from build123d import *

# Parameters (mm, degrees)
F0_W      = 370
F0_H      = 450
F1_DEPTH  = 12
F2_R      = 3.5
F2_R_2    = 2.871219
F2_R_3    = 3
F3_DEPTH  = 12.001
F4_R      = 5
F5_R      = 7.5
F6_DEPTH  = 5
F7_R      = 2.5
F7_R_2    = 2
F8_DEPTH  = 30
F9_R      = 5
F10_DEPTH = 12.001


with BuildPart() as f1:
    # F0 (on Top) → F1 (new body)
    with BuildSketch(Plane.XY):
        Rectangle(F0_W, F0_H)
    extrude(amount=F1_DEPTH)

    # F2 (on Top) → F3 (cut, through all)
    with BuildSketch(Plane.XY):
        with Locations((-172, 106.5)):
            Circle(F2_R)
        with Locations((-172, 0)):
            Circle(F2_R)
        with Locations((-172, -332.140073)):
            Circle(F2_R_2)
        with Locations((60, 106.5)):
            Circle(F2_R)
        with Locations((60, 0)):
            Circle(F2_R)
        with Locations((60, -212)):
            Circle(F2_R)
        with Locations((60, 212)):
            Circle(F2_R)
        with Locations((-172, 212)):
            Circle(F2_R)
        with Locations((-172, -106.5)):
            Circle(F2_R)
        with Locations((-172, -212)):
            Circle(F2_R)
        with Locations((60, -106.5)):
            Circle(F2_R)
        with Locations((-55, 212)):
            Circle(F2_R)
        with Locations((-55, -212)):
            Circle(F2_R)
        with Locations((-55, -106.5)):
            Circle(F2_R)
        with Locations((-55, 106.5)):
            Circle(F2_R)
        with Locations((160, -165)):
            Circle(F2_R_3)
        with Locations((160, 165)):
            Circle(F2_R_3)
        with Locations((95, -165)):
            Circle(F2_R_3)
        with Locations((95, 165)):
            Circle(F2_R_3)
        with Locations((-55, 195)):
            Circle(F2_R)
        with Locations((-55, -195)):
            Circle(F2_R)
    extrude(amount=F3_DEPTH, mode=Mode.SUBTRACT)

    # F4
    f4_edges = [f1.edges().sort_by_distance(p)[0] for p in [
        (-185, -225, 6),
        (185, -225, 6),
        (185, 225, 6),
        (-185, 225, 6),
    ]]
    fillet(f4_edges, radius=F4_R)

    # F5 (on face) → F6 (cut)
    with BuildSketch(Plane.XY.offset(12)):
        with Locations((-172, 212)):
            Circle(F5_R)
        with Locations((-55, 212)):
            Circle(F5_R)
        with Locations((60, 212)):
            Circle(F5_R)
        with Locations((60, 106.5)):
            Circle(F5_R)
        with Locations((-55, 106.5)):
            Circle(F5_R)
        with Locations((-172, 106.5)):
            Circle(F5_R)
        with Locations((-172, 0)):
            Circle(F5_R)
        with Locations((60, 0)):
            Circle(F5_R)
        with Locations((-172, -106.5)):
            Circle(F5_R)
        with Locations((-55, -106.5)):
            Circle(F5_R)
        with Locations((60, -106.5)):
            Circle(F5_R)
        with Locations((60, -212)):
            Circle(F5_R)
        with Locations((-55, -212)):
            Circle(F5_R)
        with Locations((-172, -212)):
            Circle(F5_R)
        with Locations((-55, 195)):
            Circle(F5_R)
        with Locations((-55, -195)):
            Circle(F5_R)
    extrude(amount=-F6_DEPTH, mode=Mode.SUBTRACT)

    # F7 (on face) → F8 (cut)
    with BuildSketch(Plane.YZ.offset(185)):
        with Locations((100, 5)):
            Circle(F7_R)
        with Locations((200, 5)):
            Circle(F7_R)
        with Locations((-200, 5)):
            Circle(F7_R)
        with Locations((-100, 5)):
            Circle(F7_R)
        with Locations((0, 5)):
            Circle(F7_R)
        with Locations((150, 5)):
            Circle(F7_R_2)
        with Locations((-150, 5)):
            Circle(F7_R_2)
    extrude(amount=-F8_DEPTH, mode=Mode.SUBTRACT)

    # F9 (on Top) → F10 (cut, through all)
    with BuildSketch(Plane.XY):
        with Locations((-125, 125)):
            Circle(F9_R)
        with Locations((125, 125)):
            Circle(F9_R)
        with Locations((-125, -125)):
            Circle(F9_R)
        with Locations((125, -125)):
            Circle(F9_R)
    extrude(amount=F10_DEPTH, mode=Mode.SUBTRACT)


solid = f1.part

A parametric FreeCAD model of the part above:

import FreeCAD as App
import Part
import Sketcher

V = App.Vector
Q = App.Units.Quantity


def edges_at(feature, points):
    """Names of the edges that pass closest to the given points."""
    edges = feature.Shape.Edges
    near = lambda p: min(range(len(edges)), key=lambda i: edges[i].distToShape(Part.Vertex(*p))[0])
    return sorted({f"Edge{near(p) + 1}" for p in points})

doc = App.newDocument("Part")
params = doc.addObject("Spreadsheet::Sheet", "Params")
for row, (alias, value) in enumerate([
    ("sketch1_width", "370 mm"),
    ("sketch1_height", "450 mm"),
    ("pad1_length", "12 mm"),
    ("sketch2_diameter", "7 mm"),
    ("sketch2_diameter2", "6 mm"),
    ("fillet_radius", "5 mm"),
    ("sketch3_diameter", "15 mm"),
    ("pocket2_length", "5 mm"),
    ("sketch4_diameter", "5 mm"),
    ("sketch4_diameter2", "4 mm"),
    ("pocket3_length", "30 mm"),
    ("sketch5_diameter", "10 mm"),
], start=1):
    params.set(f"A{row}", alias)
    params.set(f"B{row}", "=" + value)
    params.setAlias(f"B{row}", alias)

body = doc.addObject("PartDesign::Body", "Body")

# Sketch on XY plane
sketch1 = body.newObject("Sketcher::SketchObject", "Sketch")
sketch1.AttachmentSupport = (doc.getObject("XY_Plane"), [""])
sketch1.MapMode = "FlatFace"
sketch1.addGeometry([
    Part.LineSegment(V(-185, 225, 0), V(-185, -225, 0)),
    Part.LineSegment(V(-185, -225, 0), V(185, -225, 0)),
    Part.LineSegment(V(185, -225, 0), V(185, 225, 0)),
    Part.LineSegment(V(185, 225, 0), V(-185, 225, 0)),
], False)
sketch1.addConstraint([
    Sketcher.Constraint("Coincident", 0, 2, 1, 1),
    Sketcher.Constraint("Coincident", 1, 2, 2, 1),
    Sketcher.Constraint("Coincident", 2, 2, 3, 1),
    Sketcher.Constraint("Coincident", 3, 2, 0, 1),
    Sketcher.Constraint("Vertical", 0),
    Sketcher.Constraint("Horizontal", 1),
    Sketcher.Constraint("Vertical", 2),
    Sketcher.Constraint("Horizontal", 3),
    Sketcher.Constraint("Symmetric", 0, 2, 2, 2, -1, 1),
    Sketcher.Constraint("DistanceX", 1, 1, 1, 2, Q("370 mm")),
    Sketcher.Constraint("DistanceY", 0, 2, 0, 1, Q("450 mm")),
])
sketch1.setExpression("Constraints[9]", "Params.sketch1_width")
sketch1.setExpression("Constraints[10]", "Params.sketch1_height")
pad1 = body.newObject("PartDesign::Pad", "Pad")
pad1.Profile = sketch1
pad1.setExpression("Length", "Params.pad1_length")

# Sketch on XY plane
sketch2 = body.newObject("Sketcher::SketchObject", "Sketch001")
sketch2.AttachmentSupport = (doc.getObject("XY_Plane"), [""])
sketch2.MapMode = "FlatFace"
sketch2.addGeometry([
    Part.Circle(V(-172, 106.5, 0), V(0, 0, 1), 3.5),  # 0
    Part.Circle(V(-172, 0, 0), V(0, 0, 1), 3.5),  # 1
    Part.Circle(V(-172, -332.1, 0), V(0, 0, 1), 2.9),  # 2
    Part.Circle(V(60, 106.5, 0), V(0, 0, 1), 3.5),  # 3
    Part.Circle(V(60, 0, 0), V(0, 0, 1), 3.5),  # 4
    Part.Circle(V(60, -212, 0), V(0, 0, 1), 3.5),  # 5
    Part.Circle(V(60, 212, 0), V(0, 0, 1), 3.5),  # 6
    Part.Circle(V(-172, 212, 0), V(0, 0, 1), 3.5),  # 7
    Part.Circle(V(-172, -106.5, 0), V(0, 0, 1), 3.5),  # 8
    Part.Circle(V(-172, -212, 0), V(0, 0, 1), 3.5),  # 9
    Part.Circle(V(60, -106.5, 0), V(0, 0, 1), 3.5),  # 10
    Part.Circle(V(-55, 212, 0), V(0, 0, 1), 3.5),  # 11
    Part.Circle(V(-55, -212, 0), V(0, 0, 1), 3.5),  # 12
    Part.Circle(V(-55, -106.5, 0), V(0, 0, 1), 3.5),  # 13
    Part.Circle(V(-55, 106.5, 0), V(0, 0, 1), 3.5),  # 14
    Part.Circle(V(160, -165, 0), V(0, 0, 1), 3),  # 15
    Part.Circle(V(160, 165, 0), V(0, 0, 1), 3),  # 16
    Part.Circle(V(95, -165, 0), V(0, 0, 1), 3),  # 17
    Part.Circle(V(95, 165, 0), V(0, 0, 1), 3),  # 18
    Part.Circle(V(-55, 195, 0), V(0, 0, 1), 3.5),  # 19
    Part.Circle(V(-55, -195, 0), V(0, 0, 1), 3.5),  # 20
], False)
sketch2.addConstraint([
    Sketcher.Constraint("Equal", 0, 1),
    Sketcher.Constraint("Equal", 1, 3),
    Sketcher.Constraint("Equal", 3, 4),
    Sketcher.Constraint("Equal", 4, 5),
    Sketcher.Constraint("Equal", 5, 6),
    Sketcher.Constraint("Equal", 6, 7),
    Sketcher.Constraint("Equal", 7, 8),
    Sketcher.Constraint("Equal", 8, 9),
    Sketcher.Constraint("Equal", 9, 10),
    Sketcher.Constraint("Equal", 10, 11),
    Sketcher.Constraint("Equal", 11, 12),
    Sketcher.Constraint("Equal", 12, 13),
    Sketcher.Constraint("Equal", 13, 14),
    Sketcher.Constraint("Equal", 15, 16),
    Sketcher.Constraint("Equal", 16, 17),
    Sketcher.Constraint("Equal", 17, 18),
    Sketcher.Constraint("Equal", 14, 19),
    Sketcher.Constraint("Equal", 19, 20),
    Sketcher.Constraint("Symmetric", 5, 3, 6, 3, -1),
    Sketcher.Constraint("Symmetric", 0, 3, 8, 3, -1),
    Sketcher.Constraint("Symmetric", 7, 3, 9, 3, -1),
    Sketcher.Constraint("Symmetric", 3, 3, 10, 3, -1),
    Sketcher.Constraint("Symmetric", 11, 3, 12, 3, -1),
    Sketcher.Constraint("Symmetric", 13, 3, 14, 3, -1),
    Sketcher.Constraint("Symmetric", 15, 3, 16, 3, -1),
    Sketcher.Constraint("Symmetric", 17, 3, 18, 3, -1),
    Sketcher.Constraint("Symmetric", 19, 3, 20, 3, -1),
    Sketcher.Constraint("PointOnObject", 1, 3, -1),
    Sketcher.Constraint("PointOnObject", 4, 3, -1),
    Sketcher.Constraint("Horizontal", 0, 3, 3, 3),
    Sketcher.Constraint("Horizontal", 6, 3, 7, 3),
    Sketcher.Constraint("Horizontal", 7, 3, 11, 3),
    Sketcher.Constraint("Horizontal", 10, 3, 13, 3),
    Sketcher.Constraint("Horizontal", 15, 3, 17, 3),
    Sketcher.Constraint("Vertical", 0, 3, 1, 3),
    Sketcher.Constraint("Vertical", 1, 3, 2, 3),
    Sketcher.Constraint("Vertical", 3, 3, 4, 3),
    Sketcher.Constraint("Vertical", 4, 3, 5, 3),
    Sketcher.Constraint("Vertical", 2, 3, 7, 3),
    Sketcher.Constraint("Vertical", 12, 3, 13, 3),
    Sketcher.Constraint("Vertical", 14, 3, 19, 3),
    Sketcher.Constraint("Diameter", 0, Q("7 mm")),
    Sketcher.Constraint("Diameter", 15, Q("6 mm")),
    Sketcher.Constraint("DistanceX", 0, 3, -1, 1, Q("172 mm")),
    Sketcher.Constraint("DistanceX", -1, 1, 3, 3, Q("60 mm")),
    Sketcher.Constraint("DistanceY", 5, 3, -1, 1, Q("212 mm")),
    Sketcher.Constraint("DistanceX", 11, 3, -1, 1, Q("55 mm")),
    Sketcher.Constraint("DistanceX", -1, 1, 15, 3, Q("160 mm")),
    Sketcher.Constraint("DistanceY", 15, 3, -1, 1, Q("165 mm")),
    Sketcher.Constraint("DistanceX", -1, 1, 17, 3, Q("95 mm")),
    Sketcher.Constraint("DistanceY", -1, 1, 19, 3, Q("195 mm")),
    Sketcher.Constraint("DistanceY", 8, 3, 0, 3, Q("213 mm")),
    Sketcher.Constraint("Diameter", 2, Q("5.742438 mm")),
    Sketcher.Constraint("DistanceY", 2, 3, -1, 1, Q("332.140073 mm")),
])
sketch2.setExpression("Constraints[41]", "Params.sketch2_diameter")
sketch2.setExpression("Constraints[42]", "Params.sketch2_diameter2")
pocket1 = body.newObject("PartDesign::Pocket", "Pocket")
pocket1.Profile = sketch2
pocket1.Type = "ThroughAll"
pocket1.Reversed = True
doc.recompute()

fillet = body.newObject("PartDesign::Fillet", "Fillet")
fillet.Base = (pocket1, edges_at(pocket1, [
    (-185, -225, 6),
    (185, -225, 6),
    (185, 225, 6),
    (-185, 225, 6),
]))
fillet.setExpression("Radius", "Params.fillet_radius")

# Sketch on XY plane
sketch3 = body.newObject("Sketcher::SketchObject", "Sketch002")
sketch3.AttachmentSupport = (doc.getObject("XY_Plane"), [""])
sketch3.MapMode = "FlatFace"
sketch3.AttachmentOffset = App.Placement(V(0, 0, 12), App.Rotation())
sketch3.addGeometry([
    Part.Circle(V(-172, 212, 0), V(0, 0, 1), 8),  # 0
    Part.Circle(V(-55, 212, 0), V(0, 0, 1), 8),  # 1
    Part.Circle(V(60, 212, 0), V(0, 0, 1), 8),  # 2
    Part.Circle(V(60, 106, 0), V(0, 0, 1), 8),  # 3
    Part.Circle(V(-55, 106, 0), V(0, 0, 1), 8),  # 4
    Part.Circle(V(-172, 106, 0), V(0, 0, 1), 8),  # 5
    Part.Circle(V(-172, 0, 0), V(0, 0, 1), 8),  # 6
    Part.Circle(V(60, 0, 0), V(0, 0, 1), 8),  # 7
    Part.Circle(V(-172, -106, 0), V(0, 0, 1), 8),  # 8
    Part.Circle(V(-55, -106, 0), V(0, 0, 1), 8),  # 9
    Part.Circle(V(60, -106, 0), V(0, 0, 1), 8),  # 10
    Part.Circle(V(60, -212, 0), V(0, 0, 1), 8),  # 11
    Part.Circle(V(-55, -212, 0), V(0, 0, 1), 8),  # 12
    Part.Circle(V(-172, -212, 0), V(0, 0, 1), 8),  # 13
    Part.Circle(V(-55, 195, 0), V(0, 0, 1), 8),  # 14
    Part.Circle(V(-55, -195, 0), V(0, 0, 1), 8),  # 15
], False)
sketch3.addConstraint([
    Sketcher.Constraint("Equal", 0, 1),
    Sketcher.Constraint("Equal", 1, 2),
    Sketcher.Constraint("Equal", 2, 3),
    Sketcher.Constraint("Equal", 3, 4),
    Sketcher.Constraint("Equal", 4, 5),
    Sketcher.Constraint("Equal", 5, 6),
    Sketcher.Constraint("Equal", 6, 7),
    Sketcher.Constraint("Equal", 7, 8),
    Sketcher.Constraint("Equal", 8, 9),
    Sketcher.Constraint("Equal", 9, 10),
    Sketcher.Constraint("Equal", 10, 11),
    Sketcher.Constraint("Equal", 11, 12),
    Sketcher.Constraint("Equal", 12, 13),
    Sketcher.Constraint("Equal", 13, 14),
    Sketcher.Constraint("Equal", 14, 15),
    Sketcher.Constraint("Symmetric", 5, 3, 8, 3, -1),
    Sketcher.Constraint("Symmetric", 4, 3, 9, 3, -1),
    Sketcher.Constraint("Symmetric", 3, 3, 10, 3, -1),
    Sketcher.Constraint("Symmetric", 2, 3, 11, 3, -1),
    Sketcher.Constraint("Symmetric", 1, 3, 12, 3, -1),
    Sketcher.Constraint("Symmetric", 0, 3, 13, 3, -1),
    Sketcher.Constraint("Symmetric", 14, 3, 15, 3, -1),
    Sketcher.Constraint("PointOnObject", 6, 3, -1),
    Sketcher.Constraint("PointOnObject", 7, 3, -1),
    Sketcher.Constraint("Horizontal", 0, 3, 1, 3),
    Sketcher.Constraint("Horizontal", 1, 3, 2, 3),
    Sketcher.Constraint("Horizontal", 3, 3, 4, 3),
    Sketcher.Constraint("Horizontal", 4, 3, 5, 3),
    Sketcher.Constraint("Vertical", 2, 3, 3, 3),
    Sketcher.Constraint("Vertical", 1, 3, 4, 3),
    Sketcher.Constraint("Vertical", 0, 3, 5, 3),
    Sketcher.Constraint("Vertical", 5, 3, 6, 3),
    Sketcher.Constraint("Vertical", 3, 3, 7, 3),
    Sketcher.Constraint("Vertical", 12, 3, 14, 3),
    Sketcher.Constraint("Diameter", 0, Q("15 mm")),
    Sketcher.Constraint("DistanceX", 0, 3, -1, 1, Q("172 mm")),
    Sketcher.Constraint("DistanceY", -1, 1, 0, 3, Q("212 mm")),
    Sketcher.Constraint("DistanceX", 1, 3, -1, 1, Q("55 mm")),
    Sketcher.Constraint("DistanceX", -1, 1, 2, 3, Q("60 mm")),
    Sketcher.Constraint("DistanceY", -1, 1, 14, 3, Q("195 mm")),
    Sketcher.Constraint("DistanceY", 8, 3, 5, 3, Q("213 mm")),
])
sketch3.setExpression("Constraints[34]", "Params.sketch3_diameter")
pocket2 = body.newObject("PartDesign::Pocket", "Pocket001")
pocket2.Profile = sketch3
pocket2.setExpression("Length", "Params.pocket2_length")

# Sketch on YZ plane
sketch4 = body.newObject("Sketcher::SketchObject", "Sketch003")
sketch4.AttachmentSupport = (doc.getObject("YZ_Plane"), [""])
sketch4.MapMode = "FlatFace"
sketch4.AttachmentOffset = App.Placement(V(0, 0, 185), App.Rotation())
sketch4.addGeometry([
    Part.Circle(V(100, 5, 0), V(0, 0, 1), 2.5),  # 0
    Part.Circle(V(200, 5, 0), V(0, 0, 1), 2.5),  # 1
    Part.Circle(V(-200, 5, 0), V(0, 0, 1), 2.5),  # 2
    Part.Circle(V(-100, 5, 0), V(0, 0, 1), 2.5),  # 3
    Part.Circle(V(0, 5, 0), V(0, 0, 1), 2.5),  # 4
    Part.Circle(V(150, 5, 0), V(0, 0, 1), 2),  # 5
    Part.Circle(V(-150, 5, 0), V(0, 0, 1), 2),  # 6
], False)
sketch4.addConstraint([
    Sketcher.Constraint("Equal", 0, 1),
    Sketcher.Constraint("Equal", 1, 2),
    Sketcher.Constraint("Equal", 2, 3),
    Sketcher.Constraint("Equal", 3, 4),
    Sketcher.Constraint("Equal", 5, 6),
    Sketcher.Constraint("Symmetric", 1, 3, 2, 3, -2),
    Sketcher.Constraint("Symmetric", 0, 3, 3, 3, -2),
    Sketcher.Constraint("Symmetric", 5, 3, 6, 3, -2),
    Sketcher.Constraint("PointOnObject", 4, 3, -2),
    Sketcher.Constraint("Horizontal", 0, 3, 1, 3),
    Sketcher.Constraint("Horizontal", 3, 3, 4, 3),
    Sketcher.Constraint("Horizontal", 4, 3, 5, 3),
    Sketcher.Constraint("Diameter", 0, Q("5 mm")),
    Sketcher.Constraint("Diameter", 5, Q("4 mm")),
    Sketcher.Constraint("DistanceX", -1, 1, 0, 3, Q("100 mm")),
    Sketcher.Constraint("DistanceY", -1, 1, 0, 3, Q("5 mm")),
    Sketcher.Constraint("DistanceX", -1, 1, 1, 3, Q("200 mm")),
    Sketcher.Constraint("DistanceX", -1, 1, 5, 3, Q("150 mm")),
])
sketch4.setExpression("Constraints[12]", "Params.sketch4_diameter")
sketch4.setExpression("Constraints[13]", "Params.sketch4_diameter2")
pocket3 = body.newObject("PartDesign::Pocket", "Pocket002")
pocket3.Profile = sketch4
pocket3.setExpression("Length", "Params.pocket3_length")

# Sketch on XY plane
sketch5 = body.newObject("Sketcher::SketchObject", "Sketch004")
sketch5.AttachmentSupport = (doc.getObject("XY_Plane"), [""])
sketch5.MapMode = "FlatFace"
sketch5.addGeometry([
    Part.Circle(V(-125, 125, 0), V(0, 0, 1), 5),
    Part.Circle(V(125, 125, 0), V(0, 0, 1), 5),
    Part.Circle(V(-125, -125, 0), V(0, 0, 1), 5),
    Part.Circle(V(125, -125, 0), V(0, 0, 1), 5),
], False)
sketch5.addConstraint([
    Sketcher.Constraint("Equal", 0, 1),
    Sketcher.Constraint("Equal", 1, 2),
    Sketcher.Constraint("Equal", 2, 3),
    Sketcher.Constraint("Symmetric", 1, 3, 2, 3, -1, 1),
    Sketcher.Constraint("Symmetric", 0, 3, 3, 3, -1, 1),
    Sketcher.Constraint("Symmetric", 0, 3, 1, 3, -2),
    Sketcher.Constraint("Diameter", 0, Q("10 mm")),
    Sketcher.Constraint("DistanceX", 0, 3, -1, 1, Q("125 mm")),
    Sketcher.Constraint("DistanceY", -1, 1, 0, 3, Q("125 mm")),
])
sketch5.setExpression("Constraints[6]", "Params.sketch5_diameter")
pocket4 = body.newObject("PartDesign::Pocket", "Pocket003")
pocket4.Profile = sketch5
pocket4.Type = "ThroughAll"
pocket4.Reversed = True

doc.recompute()
